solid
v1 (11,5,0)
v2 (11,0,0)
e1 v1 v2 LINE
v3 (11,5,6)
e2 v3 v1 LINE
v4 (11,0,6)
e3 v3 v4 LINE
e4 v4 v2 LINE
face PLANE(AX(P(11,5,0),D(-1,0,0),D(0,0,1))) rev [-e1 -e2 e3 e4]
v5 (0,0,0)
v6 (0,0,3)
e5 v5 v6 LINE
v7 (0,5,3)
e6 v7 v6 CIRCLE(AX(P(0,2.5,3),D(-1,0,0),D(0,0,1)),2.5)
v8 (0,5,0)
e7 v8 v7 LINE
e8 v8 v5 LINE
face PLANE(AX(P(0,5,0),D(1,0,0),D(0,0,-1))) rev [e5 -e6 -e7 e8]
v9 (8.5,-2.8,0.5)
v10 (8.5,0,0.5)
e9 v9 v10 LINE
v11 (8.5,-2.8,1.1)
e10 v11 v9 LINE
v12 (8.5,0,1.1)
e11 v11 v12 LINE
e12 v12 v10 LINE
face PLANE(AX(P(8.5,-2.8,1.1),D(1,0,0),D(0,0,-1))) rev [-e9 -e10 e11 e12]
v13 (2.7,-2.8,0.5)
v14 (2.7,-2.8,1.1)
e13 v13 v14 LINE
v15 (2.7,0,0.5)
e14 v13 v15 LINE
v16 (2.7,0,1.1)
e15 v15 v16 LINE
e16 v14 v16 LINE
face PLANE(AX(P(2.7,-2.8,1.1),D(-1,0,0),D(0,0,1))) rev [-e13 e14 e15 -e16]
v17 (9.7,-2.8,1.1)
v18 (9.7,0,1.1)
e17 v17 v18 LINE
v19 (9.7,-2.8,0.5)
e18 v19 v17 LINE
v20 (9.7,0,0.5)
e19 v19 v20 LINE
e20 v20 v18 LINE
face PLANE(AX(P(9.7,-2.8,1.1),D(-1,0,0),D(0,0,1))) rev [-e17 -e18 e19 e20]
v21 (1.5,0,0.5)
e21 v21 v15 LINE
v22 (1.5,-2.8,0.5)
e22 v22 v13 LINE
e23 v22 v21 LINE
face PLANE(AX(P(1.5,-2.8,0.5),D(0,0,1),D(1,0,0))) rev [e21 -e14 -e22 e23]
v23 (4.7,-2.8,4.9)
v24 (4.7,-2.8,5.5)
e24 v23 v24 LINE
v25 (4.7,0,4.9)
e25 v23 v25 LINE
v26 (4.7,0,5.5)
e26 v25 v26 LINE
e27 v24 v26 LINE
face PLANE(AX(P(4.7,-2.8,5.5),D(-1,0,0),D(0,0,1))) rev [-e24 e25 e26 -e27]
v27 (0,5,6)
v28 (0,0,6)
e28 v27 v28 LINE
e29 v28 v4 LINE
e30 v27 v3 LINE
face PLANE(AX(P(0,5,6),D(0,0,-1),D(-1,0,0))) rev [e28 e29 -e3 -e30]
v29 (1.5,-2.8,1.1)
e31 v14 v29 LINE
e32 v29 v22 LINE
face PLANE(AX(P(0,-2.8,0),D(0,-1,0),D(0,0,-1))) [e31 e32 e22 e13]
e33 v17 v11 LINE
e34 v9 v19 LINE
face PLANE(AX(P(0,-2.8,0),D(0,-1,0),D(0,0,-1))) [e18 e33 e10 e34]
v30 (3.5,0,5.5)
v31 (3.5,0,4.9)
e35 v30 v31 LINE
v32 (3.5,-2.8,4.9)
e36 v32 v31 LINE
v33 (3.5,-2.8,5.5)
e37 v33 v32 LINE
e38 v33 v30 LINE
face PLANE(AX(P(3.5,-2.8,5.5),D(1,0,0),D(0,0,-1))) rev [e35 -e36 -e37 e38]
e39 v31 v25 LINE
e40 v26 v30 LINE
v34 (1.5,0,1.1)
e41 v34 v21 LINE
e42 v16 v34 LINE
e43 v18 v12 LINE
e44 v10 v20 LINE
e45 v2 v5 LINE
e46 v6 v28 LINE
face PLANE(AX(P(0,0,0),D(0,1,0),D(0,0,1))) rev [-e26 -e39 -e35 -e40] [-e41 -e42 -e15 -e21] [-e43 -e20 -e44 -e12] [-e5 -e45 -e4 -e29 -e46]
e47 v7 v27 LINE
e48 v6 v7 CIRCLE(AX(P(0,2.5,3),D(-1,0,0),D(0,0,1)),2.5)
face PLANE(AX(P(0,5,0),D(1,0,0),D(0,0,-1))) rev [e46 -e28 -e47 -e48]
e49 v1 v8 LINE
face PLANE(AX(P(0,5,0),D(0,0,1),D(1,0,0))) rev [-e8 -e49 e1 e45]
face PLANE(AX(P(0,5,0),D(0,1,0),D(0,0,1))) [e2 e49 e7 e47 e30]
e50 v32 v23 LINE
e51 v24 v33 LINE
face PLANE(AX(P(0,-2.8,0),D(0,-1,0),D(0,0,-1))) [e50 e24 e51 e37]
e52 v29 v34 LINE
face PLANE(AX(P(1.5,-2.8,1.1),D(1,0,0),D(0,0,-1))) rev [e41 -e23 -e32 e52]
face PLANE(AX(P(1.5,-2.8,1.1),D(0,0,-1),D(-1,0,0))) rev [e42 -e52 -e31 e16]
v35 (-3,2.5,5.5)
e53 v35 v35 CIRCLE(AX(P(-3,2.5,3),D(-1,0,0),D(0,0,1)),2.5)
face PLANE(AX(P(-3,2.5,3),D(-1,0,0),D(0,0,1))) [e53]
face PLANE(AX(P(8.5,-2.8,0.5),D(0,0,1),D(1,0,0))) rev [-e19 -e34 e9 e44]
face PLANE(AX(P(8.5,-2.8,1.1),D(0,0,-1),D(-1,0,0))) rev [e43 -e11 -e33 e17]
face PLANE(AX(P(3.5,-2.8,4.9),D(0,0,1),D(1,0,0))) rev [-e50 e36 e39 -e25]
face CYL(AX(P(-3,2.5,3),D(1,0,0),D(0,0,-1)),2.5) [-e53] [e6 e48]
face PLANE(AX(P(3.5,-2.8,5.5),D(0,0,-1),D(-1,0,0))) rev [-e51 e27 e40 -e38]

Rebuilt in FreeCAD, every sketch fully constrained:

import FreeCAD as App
import Part
import Sketcher
from FreeCAD import Vector

doc = App.newDocument("Part")
params = doc.addObject("Spreadsheet::Sheet", "Params")
for row, (alias, value) in enumerate([
    ("sketch1_width", "11 mm"),
    ("sketch1_height", "6 mm"),
    ("pad1_length", "5 mm"),
    ("sketch2_diameter", "5 mm"),
    ("pad2_length", "3 mm"),
    ("sketch3_width", "1.2 mm"),
    ("sketch3_height", "0.6 mm"),
    ("pad3_length", "2.8 mm"),
], start=1):
    params.set(f"A{row}", alias)
    params.set(f"B{row}", "=" + value)
    params.setAlias(f"B{row}", alias)

body = doc.addObject("PartDesign::Body", "Body")

# Sketch on XZ plane
sketch1 = body.newObject("Sketcher::SketchObject", "Sketch")
sketch1.AttachmentSupport = (doc.getObject("XZ_Plane"), [""])
sketch1.MapMode = "FlatFace"
sketch1.addGeometry([
    Part.LineSegment(Vector(0, 0, 0), Vector(0, 6, 0)),
    Part.LineSegment(Vector(0, 6, 0), Vector(11, 6, 0)),
    Part.LineSegment(Vector(11, 6, 0), Vector(11, 0, 0)),
    Part.LineSegment(Vector(11, 0, 0), Vector(0, 0, 0)),
], False)
sketch1.addConstraint([
    Sketcher.Constraint("Coincident", 0, 2, 1, 1),
    Sketcher.Constraint("Coincident", 1, 2, 2, 1),
    Sketcher.Constraint("Coincident", 2, 2, 3, 1),
    Sketcher.Constraint("Coincident", 3, 2, 0, 1),
    Sketcher.Constraint("Vertical", 0),
    Sketcher.Constraint("Horizontal", 1),
    Sketcher.Constraint("Vertical", 2),
    Sketcher.Constraint("Horizontal", 3),
    Sketcher.Constraint("Coincident", 3, 2, -1, 1),
    Sketcher.Constraint("DistanceX", 1, 1, 1, 2, 11.0),
    Sketcher.Constraint("DistanceY", 0, 1, 0, 2, 6.0),
])
sketch1.setExpression("Constraints[9]", "Params.sketch1_width")
sketch1.setExpression("Constraints[10]", "Params.sketch1_height")
pad1 = body.newObject("PartDesign::Pad", "Pad")
pad1.Profile = sketch1
pad1.setExpression("Length", "Params.pad1_length")
pad1.Reversed = True

# Sketch on YZ plane
sketch2 = body.newObject("Sketcher::SketchObject", "Sketch001")
sketch2.AttachmentSupport = (doc.getObject("YZ_Plane"), [""])
sketch2.MapMode = "FlatFace"
sketch2.addGeometry(Part.Circle(Vector(2.5, 3, 0), Vector(0, 0, 1), 2.5), False)
sketch2.addConstraint([
    Sketcher.Constraint("Diameter", 0, 5.0),
    Sketcher.Constraint("DistanceY", -1, 1, 0, 3, 3.0),
    Sketcher.Constraint("DistanceX", -1, 1, 0, 3, 2.5),
])
sketch2.setExpression("Constraints[0]", "Params.sketch2_diameter")
pad2 = body.newObject("PartDesign::Pad", "Pad001")
pad2.Profile = sketch2
pad2.setExpression("Length", "Params.pad2_length")
pad2.Reversed = True

# Sketch on XZ plane
sketch3 = body.newObject("Sketcher::SketchObject", "Sketch002")
sketch3.AttachmentSupport = (doc.getObject("XZ_Plane"), [""])
sketch3.MapMode = "FlatFace"
sketch3.addGeometry([
    Part.LineSegment(Vector(2.7, 0.5, 0), Vector(2.7, 1.1, 0)),  # 0
    Part.LineSegment(Vector(2.7, 1.1, 0), Vector(1.5, 1.1, 0)),  # 1
    Part.LineSegment(Vector(1.5, 1.1, 0), Vector(1.5, 0.5, 0)),  # 2
    Part.LineSegment(Vector(1.5, 0.5, 0), Vector(2.7, 0.5, 0)),  # 3
    Part.LineSegment(Vector(9.7, 0.5, 0), Vector(9.7, 1.1, 0)),  # 4
    Part.LineSegment(Vector(9.7, 1.1, 0), Vector(8.5, 1.1, 0)),  # 5
    Part.LineSegment(Vector(8.5, 1.1, 0), Vector(8.5, 0.5, 0)),  # 6
    Part.LineSegment(Vector(8.5, 0.5, 0), Vector(9.7, 0.5, 0)),  # 7
    Part.LineSegment(Vector(4.7, 4.9, 0), Vector(4.7, 5.5, 0)),  # 8
    Part.LineSegment(Vector(4.7, 5.5, 0), Vector(3.5, 5.5, 0)),  # 9
    Part.LineSegment(Vector(3.5, 5.5, 0), Vector(3.5, 4.9, 0)),  # 10
    Part.LineSegment(Vector(3.5, 4.9, 0), Vector(4.7, 4.9, 0)),  # 11
], False)
sketch3.addConstraint([
    Sketcher.Constraint("Coincident", 0, 2, 1, 1),
    Sketcher.Constraint("Coincident", 1, 2, 2, 1),
    Sketcher.Constraint("Coincident", 2, 2, 3, 1),
    Sketcher.Constraint("Coincident", 3, 2, 0, 1),
    Sketcher.Constraint("Coincident", 4, 2, 5, 1),
    Sketcher.Constraint("Coincident", 5, 2, 6, 1),
    Sketcher.Constraint("Coincident", 6, 2, 7, 1),
    Sketcher.Constraint("Coincident", 7, 2, 4, 1),
    Sketcher.Constraint("Coincident", 8, 2, 9, 1),
    Sketcher.Constraint("Coincident", 9, 2, 10, 1),
    Sketcher.Constraint("Coincident", 10, 2, 11, 1),
    Sketcher.Constraint("Coincident", 11, 2, 8, 1),
    Sketcher.Constraint("Vertical", 0),
    Sketcher.Constraint("Horizontal", 1),
    Sketcher.Constraint("Vertical", 2),
    Sketcher.Constraint("Horizontal", 3),
    Sketcher.Constraint("Vertical", 4),
    Sketcher.Constraint("Horizontal", 5),
    Sketcher.Constraint("Vertical", 6),
    Sketcher.Constraint("Horizontal", 7),
    Sketcher.Constraint("Vertical", 8),
    Sketcher.Constraint("Horizontal", 9),
    Sketcher.Constraint("Vertical", 10),
    Sketcher.Constraint("Horizontal", 11),
    Sketcher.Constraint("Horizontal", 1, 2, 4, 2),
    Sketcher.Constraint("Horizontal", 3, 2, 6, 2),
    Sketcher.Constraint("Equal", 3, 5),
    Sketcher.Constraint("Equal", 7, 9),
    Sketcher.Constraint("Equal", 6, 8),
    Sketcher.Constraint("DistanceX", 1, 2, 1, 1, 1.2),
    Sketcher.Constraint("DistanceY", 0, 1, 0, 2, 0.6),
    Sketcher.Constraint("DistanceX", 0, 2, 4, 2, 7.0),
    Sketcher.Constraint("DistanceX", 0, 2, 8, 2, 2.0),
    Sketcher.Constraint("DistanceY", 3, 2, 8, 2, 5.0),
    Sketcher.Constraint("DistanceX", -1, 1, 0, 2, 2.7),
    Sketcher.Constraint("DistanceY", -1, 1, 0, 2, 1.1),
])
sketch3.setExpression("Constraints[29]", "Params.sketch3_width")
sketch3.setExpression("Constraints[30]", "Params.sketch3_height")
pad3 = body.newObject("PartDesign::Pad", "Pad002")
pad3.Profile = sketch3
pad3.setExpression("Length", "Params.pad3_length")

doc.recompute()
